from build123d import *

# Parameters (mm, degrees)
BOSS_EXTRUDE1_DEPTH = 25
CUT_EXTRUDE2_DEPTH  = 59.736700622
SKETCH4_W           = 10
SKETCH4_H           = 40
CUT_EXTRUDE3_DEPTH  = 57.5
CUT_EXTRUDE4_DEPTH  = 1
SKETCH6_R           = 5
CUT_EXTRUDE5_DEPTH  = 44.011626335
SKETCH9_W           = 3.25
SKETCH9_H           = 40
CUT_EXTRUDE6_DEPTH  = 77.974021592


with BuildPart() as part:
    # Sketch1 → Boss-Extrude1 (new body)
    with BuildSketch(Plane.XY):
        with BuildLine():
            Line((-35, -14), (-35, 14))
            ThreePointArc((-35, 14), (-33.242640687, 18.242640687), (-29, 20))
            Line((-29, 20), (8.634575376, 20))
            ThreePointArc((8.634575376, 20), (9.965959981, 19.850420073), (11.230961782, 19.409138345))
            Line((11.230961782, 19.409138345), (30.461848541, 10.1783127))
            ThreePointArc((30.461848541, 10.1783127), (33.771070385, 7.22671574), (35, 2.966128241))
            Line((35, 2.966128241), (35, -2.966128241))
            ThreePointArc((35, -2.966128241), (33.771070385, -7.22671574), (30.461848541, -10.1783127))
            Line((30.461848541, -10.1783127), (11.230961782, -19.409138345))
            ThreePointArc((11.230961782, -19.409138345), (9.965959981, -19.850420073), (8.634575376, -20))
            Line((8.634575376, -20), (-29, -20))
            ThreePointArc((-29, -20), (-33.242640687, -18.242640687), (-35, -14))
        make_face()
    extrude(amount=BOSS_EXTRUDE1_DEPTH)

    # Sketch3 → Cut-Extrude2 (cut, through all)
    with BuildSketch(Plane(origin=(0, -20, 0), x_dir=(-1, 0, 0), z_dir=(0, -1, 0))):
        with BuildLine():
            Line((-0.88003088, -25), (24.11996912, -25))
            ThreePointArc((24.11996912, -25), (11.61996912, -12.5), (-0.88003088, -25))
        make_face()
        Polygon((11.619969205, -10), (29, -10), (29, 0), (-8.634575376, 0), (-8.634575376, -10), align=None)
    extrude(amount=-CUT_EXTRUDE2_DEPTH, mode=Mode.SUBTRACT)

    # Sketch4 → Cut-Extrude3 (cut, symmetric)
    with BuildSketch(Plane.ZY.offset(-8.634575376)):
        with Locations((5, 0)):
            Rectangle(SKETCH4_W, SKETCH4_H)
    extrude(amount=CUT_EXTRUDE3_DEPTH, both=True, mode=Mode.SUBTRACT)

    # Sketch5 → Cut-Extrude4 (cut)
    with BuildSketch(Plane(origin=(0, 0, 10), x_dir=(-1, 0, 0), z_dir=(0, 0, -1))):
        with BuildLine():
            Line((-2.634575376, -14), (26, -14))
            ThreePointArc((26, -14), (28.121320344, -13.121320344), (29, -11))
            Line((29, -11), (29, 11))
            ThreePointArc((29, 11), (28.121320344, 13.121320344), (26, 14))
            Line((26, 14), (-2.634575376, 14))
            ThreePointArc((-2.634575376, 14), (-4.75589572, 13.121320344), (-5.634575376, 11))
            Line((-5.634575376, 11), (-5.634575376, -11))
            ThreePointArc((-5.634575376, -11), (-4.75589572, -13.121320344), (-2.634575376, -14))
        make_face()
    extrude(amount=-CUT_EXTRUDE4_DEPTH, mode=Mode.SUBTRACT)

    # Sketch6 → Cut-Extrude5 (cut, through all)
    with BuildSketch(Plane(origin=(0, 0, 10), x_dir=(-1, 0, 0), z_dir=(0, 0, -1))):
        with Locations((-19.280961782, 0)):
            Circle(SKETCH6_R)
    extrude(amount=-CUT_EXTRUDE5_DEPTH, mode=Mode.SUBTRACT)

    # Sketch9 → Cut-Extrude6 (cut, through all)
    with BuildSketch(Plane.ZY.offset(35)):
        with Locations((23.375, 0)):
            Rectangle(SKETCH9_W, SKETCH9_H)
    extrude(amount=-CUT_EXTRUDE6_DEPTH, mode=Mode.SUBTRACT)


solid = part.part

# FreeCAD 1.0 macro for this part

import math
import FreeCAD as App
import Part
import Sketcher
from FreeCAD import Vector
Q = App.Units.Quantity


def add_polygon(sketch, points):
    """Adds a closed chain of lines whose ends are joined by coincident constraints."""
    first, n = sketch.GeometryCount, len(points)
    for a, b in zip(points, points[1:] + points[:1]):
        sketch.addGeometry(Part.LineSegment(App.Vector(*a, 0), App.Vector(*b, 0)), False)
    for i in range(n):
        sketch.addConstraint(Sketcher.Constraint("Coincident", first + i, 2, first + (i + 1) % n, 1))

doc = App.newDocument("Part")
params = doc.addObject("Spreadsheet::Sheet", "Params")
for row, (alias, value) in enumerate([
    ("sketch1_radius", "6 mm"),
    ("sketch1_radius2", "8 mm"),
    ("sketch1_height", "28 mm"),
    ("pad1_length", "25 mm"),
    ("sketch2_radius", "12.5 mm"),
    ("sketch2_height", "10 mm"),
    ("sketch3_width", "40 mm"),
    ("sketch3_height", "10 mm"),
    ("pocket2_length", "115 mm"),
    ("sketch4_radius", "3 mm"),
    ("sketch4_height", "22 mm"),
    ("pocket3_length", "1 mm"),
    ("sketch5_diameter", "10 mm"),
    ("sketch6_width", "40 mm"),
    ("sketch6_height", "3.25 mm"),
], start=1):
    params.set(f"A{row}", alias)
    params.set(f"B{row}", "=" + value)
    params.setAlias(f"B{row}", alias)

body = doc.addObject("PartDesign::Body", "Body")

# Sketch on XY plane
sketch1 = body.newObject("Sketcher::SketchObject", "Sketch")
sketch1.AttachmentSupport = (doc.getObject("XY_Plane"), [""])
sketch1.MapMode = "FlatFace"
sketch1.addGeometry([
    Part.LineSegment(Vector(-35, 14, 0), Vector(-35, -14, 0)),  # 0
    Part.ArcOfCircle(Part.Circle(Vector(-29, -14, 0), Vector(0, 0, 1), 6), math.radians(180), math.radians(270)),  # 1
    Part.LineSegment(Vector(-29, -20, 0), Vector(8.6, -20, 0)),  # 2
    Part.ArcOfCircle(Part.Circle(Vector(8.6, -14, 0), Vector(0, 0, 1), 6), math.radians(-90), math.radians(-64)),  # 3
    Part.LineSegment(Vector(11.2, -19.4, 0), Vector(30.5, -10.2, 0)),  # 4
    Part.ArcOfCircle(Part.Circle(Vector(27, -3, 0), Vector(0, 0, 1), 8), math.radians(-64), math.radians(0)),  # 5
    Part.LineSegment(Vector(35, -3, 0), Vector(35, 3, 0)),  # 6
    Part.ArcOfCircle(Part.Circle(Vector(27, 3, 0), Vector(0, 0, 1), 8), math.radians(0), math.radians(64)),  # 7
    Part.LineSegment(Vector(30.5, 10.2, 0), Vector(11.2, 19.4, 0)),  # 8
    Part.ArcOfCircle(Part.Circle(Vector(8.6, 14, 0), Vector(0, 0, 1), 6), math.radians(64), math.radians(90)),  # 9
    Part.LineSegment(Vector(8.6, 20, 0), Vector(-29, 20, 0)),  # 10
    Part.ArcOfCircle(Part.Circle(Vector(-29, 14, 0), Vector(0, 0, 1), 6), math.radians(90), math.radians(180)),  # 11
], False)
sketch1.addConstraint([
    Sketcher.Constraint("Tangent", 0, 2, 1, 1),
    Sketcher.Constraint("Tangent", 1, 2, 2, 1),
    Sketcher.Constraint("Tangent", 2, 2, 3, 1),
    Sketcher.Constraint("Tangent", 3, 2, 4, 1),
    Sketcher.Constraint("Tangent", 4, 2, 5, 1),
    Sketcher.Constraint("Tangent", 5, 2, 6, 1),
    Sketcher.Constraint("Tangent", 6, 2, 7, 1),
    Sketcher.Constraint("Tangent", 7, 2, 8, 1),
    Sketcher.Constraint("Tangent", 8, 2, 9, 1),
    Sketcher.Constraint("Tangent", 9, 2, 10, 1),
    Sketcher.Constraint("Tangent", 10, 2, 11, 1),
    Sketcher.Constraint("Tangent", 11, 2, 0, 1),
    Sketcher.Constraint("Vertical", 0),
    Sketcher.Constraint("Horizontal", 2),
    Sketcher.Constraint("Vertical", 6),
    Sketcher.Constraint("Horizontal", 10),
    Sketcher.Constraint("Equal", 1, 3),
    Sketcher.Constraint("Equal", 5, 7),
    Sketcher.Constraint("Equal", 3, 9),
    Sketcher.Constraint("Equal", 9, 11),
    Sketcher.Constraint("Symmetric", 3, 3, 9, 3, -1),
    Sketcher.Constraint("Vertical", 4, 2, 7, 2),
    Sketcher.Constraint("Radius", 1, Q("6 mm")),
    Sketcher.Constraint("Radius", 5, Q("8 mm")),
    Sketcher.Constraint("DistanceY", 0, 2, 0, 1, Q("28 mm")),
    Sketcher.Constraint("DistanceX", 1, 3, -1, 1, Q("29 mm")),
    Sketcher.Constraint("DistanceX", -1, 1, 5, 3, Q("27 mm")),
    Sketcher.Constraint("DistanceX", 2, 1, 2, 2, Q("37.634575 mm")),
    Sketcher.Constraint("DistanceY", 6, 1, 6, 2, Q("5.932256 mm")),
])
sketch1.setExpression("Constraints[22]", "Params.sketch1_radius")
sketch1.setExpression("Constraints[23]", "Params.sketch1_radius2")
sketch1.setExpression("Constraints[24]", "Params.sketch1_height")
pad1 = body.newObject("PartDesign::Pad", "Pad")
pad1.Profile = sketch1
pad1.setExpression("Length", "Params.pad1_length")

# Sketch on XZ plane
sketch2 = body.newObject("Sketcher::SketchObject", "Sketch001")
sketch2.AttachmentSupport = (doc.getObject("XZ_Plane"), [""])
sketch2.MapMode = "FlatFace"
sketch2.AttachmentOffset = App.Placement(Vector(0, 0, 20), App.Rotation())
sketch2.addGeometry(Part.LineSegment(Vector(1, 25, 0), Vector(-24, 25, 0)), False)  # 0
sketch2.addGeometry(Part.ArcOfCircle(Part.Circle(Vector(-12, 25, 0), Vector(0, 0, 1), 12), math.radians(180), math.radians(360)), False)  # 1
add_polygon(sketch2, [(-29, 10), (-29, 0), (9, 0), (9, 10)])  # lines 2-5
sketch2.addConstraint([
    Sketcher.Constraint("Coincident", 0, 1, 1, 2),
    Sketcher.Constraint("Coincident", 1, 1, 0, 2),
    Sketcher.Constraint("Horizontal", 0),
    Sketcher.Constraint("Vertical", 2),
    Sketcher.Constraint("Horizontal", 3),
    Sketcher.Constraint("Vertical", 4),
    Sketcher.Constraint("Horizontal", 5),
    Sketcher.Constraint("PointOnObject", 2, 2, -1),
    Sketcher.Constraint("Horizontal", 1, 3, 0, 1),
    Sketcher.Constraint("Radius", 1, Q("12.5 mm")),
    Sketcher.Constraint("DistanceY", 2, 2, 2, 1, Q("10 mm")),
    Sketcher.Constraint("DistanceY", -1, 1, 1, 3, Q("25 mm")),
    Sketcher.Constraint("DistanceX", 2, 2, -1, 1, Q("29 mm")),
    Sketcher.Constraint("DistanceX", 3, 1, 3, 2, Q("37.634575 mm")),
    Sketcher.Constraint("DistanceX", 1, 3, -1, 1, Q("11.619969 mm")),
])
sketch2.setExpression("Constraints[13]", "Params.sketch2_radius")
sketch2.setExpression("Constraints[14]", "Params.sketch2_height")
pocket1 = body.newObject("PartDesign::Pocket", "Pocket")
pocket1.Profile = sketch2
pocket1.Type = "ThroughAll"

# Sketch on YZ plane
sketch3 = body.newObject("Sketcher::SketchObject", "Sketch002")
sketch3.AttachmentSupport = (doc.getObject("YZ_Plane"), [""])
sketch3.MapMode = "FlatFace"
sketch3.AttachmentOffset = App.Placement(Vector(0, 0, 8.634575), App.Rotation())
add_polygon(sketch3, [(20, 0), (-20, 0), (-20, 10), (20, 10)])  # lines 0-3
sketch3.addConstraint([
    Sketcher.Constraint("Horizontal", 0),
    Sketcher.Constraint("Vertical", 1),
    Sketcher.Constraint("Horizontal", 2),
    Sketcher.Constraint("Vertical", 3),
    Sketcher.Constraint("Symmetric", 0, 2, 3, 2, -1, 1),
    Sketcher.Constraint("DistanceX", 0, 2, 0, 1, Q("40 mm")),
    Sketcher.Constraint("DistanceY", 1, 1, 1, 2, Q("10 mm")),
])
sketch3.setExpression("Constraints[9]", "Params.sketch3_width")
sketch3.setExpression("Constraints[10]", "Params.sketch3_height")
pocket2 = body.newObject("PartDesign::Pocket", "Pocket001")
pocket2.Profile = sketch3
pocket2.setExpression("Length", "Params.pocket2_length")
pocket2.Midplane = True

# Sketch on XY plane
sketch4 = body.newObject("Sketcher::SketchObject", "Sketch003")
sketch4.AttachmentSupport = (doc.getObject("XY_Plane"), [""])
sketch4.MapMode = "FlatFace"
sketch4.AttachmentOffset = App.Placement(Vector(0, 0, 10), App.Rotation())
sketch4.addGeometry([
    Part.LineSegment(Vector(2.6, -14, 0), Vector(-26, -14, 0)),  # 0
    Part.ArcOfCircle(Part.Circle(Vector(-26, -11, 0), Vector(0, 0, 1), 3), math.radians(180), math.radians(270)),  # 1
    Part.LineSegment(Vector(-29, -11, 0), Vector(-29, 11, 0)),  # 2
    Part.ArcOfCircle(Part.Circle(Vector(-26, 11, 0), Vector(0, 0, 1), 3), math.radians(90), math.radians(180)),  # 3
    Part.LineSegment(Vector(-26, 14, 0), Vector(2.6, 14, 0)),  # 4
    Part.ArcOfCircle(Part.Circle(Vector(2.6, 11, 0), Vector(0, 0, 1), 3), math.radians(0), math.radians(90)),  # 5
    Part.LineSegment(Vector(5.6, 11, 0), Vector(5.6, -11, 0)),  # 6
    Part.ArcOfCircle(Part.Circle(Vector(2.6, -11, 0), Vector(0, 0, 1), 3), math.radians(-90), math.radians(0)),  # 7
], False)
sketch4.addConstraint([
    Sketcher.Constraint("Tangent", 0, 2, 1, 2),
    Sketcher.Constraint("Tangent", 1, 1, 2, 1),
    Sketcher.Constraint("Tangent", 2, 2, 3, 2),
    Sketcher.Constraint("Tangent", 3, 1, 4, 1),
    Sketcher.Constraint("Tangent", 4, 2, 5, 2),
    Sketcher.Constraint("Tangent", 5, 1, 6, 1),
    Sketcher.Constraint("Tangent", 6, 2, 7, 2),
    Sketcher.Constraint("Tangent", 7, 1, 0, 1),
    Sketcher.Constraint("Horizontal", 0),
    Sketcher.Constraint("Vertical", 2),
    Sketcher.Constraint("Horizontal", 4),
    Sketcher.Constraint("Vertical", 6),
    Sketcher.Constraint("Equal", 1, 3),
    Sketcher.Constraint("Equal", 3, 5),
    Sketcher.Constraint("Equal", 5, 7),
    Sketcher.Constraint("Radius", 1, Q("3 mm")),
    Sketcher.Constraint("DistanceY", 2, 1, 2, 2, Q("22 mm")),
    Sketcher.Constraint("DistanceX", 1, 3, -1, 1, Q("26 mm")),
    Sketcher.Constraint("DistanceY", 1, 3, -1, 1, Q("11 mm")),
    Sketcher.Constraint("DistanceX", 0, 2, 0, 1, Q("28.634575 mm")),
])
sketch4.setExpression("Constraints[15]", "Params.sketch4_radius")
sketch4.setExpression("Constraints[16]", "Params.sketch4_height")
pocket3 = body.newObject("PartDesign::Pocket", "Pocket002")
pocket3.Profile = sketch4
pocket3.setExpression("Length", "Params.pocket3_length")
pocket3.Reversed = True

# Sketch on XY plane
sketch5 = body.newObject("Sketcher::SketchObject", "Sketch004")
sketch5.AttachmentSupport = (doc.getObject("XY_Plane"), [""])
sketch5.MapMode = "FlatFace"
sketch5.AttachmentOffset = App.Placement(Vector(0, 0, 10), App.Rotation())
sketch5.addGeometry(Part.Circle(Vector(19, 0, 0), Vector(0, 0, 1), 5), False)
sketch5.addConstraint([
    Sketcher.Constraint("PointOnObject", 0, 3, -1),
    Sketcher.Constraint("Diameter", 0, Q("10 mm")),
    Sketcher.Constraint("DistanceX", -1, 1, 0, 3, Q("19.280962 mm")),
])
sketch5.setExpression("Constraints[1]", "Params.sketch5_diameter")
pocket4 = body.newObject("PartDesign::Pocket", "Pocket003")
pocket4.Profile = sketch5
pocket4.Type = "ThroughAll"
pocket4.Reversed = True

# Sketch on YZ plane
sketch6 = body.newObject("Sketcher::SketchObject", "Sketch005")
sketch6.AttachmentSupport = (doc.getObject("YZ_Plane"), [""])
sketch6.MapMode = "FlatFace"
sketch6.AttachmentOffset = App.Placement(Vector(0, 0, -35), App.Rotation())
add_polygon(sketch6, [(20, 21.8), (-20, 21.8), (-20, 25), (20, 25)])  # lines 0-3
sketch6.addConstraint([
    Sketcher.Constraint("Horizontal", 0),
    Sketcher.Constraint("Vertical", 1),
    Sketcher.Constraint("Horizontal", 2),
    Sketcher.Constraint("Vertical", 3),
    Sketcher.Constraint("DistanceX", 0, 2, 0, 1, Q("40 mm")),
    Sketcher.Constraint("DistanceX", 0, 2, -1, 1, Q("20 mm")),
    Sketcher.Constraint("DistanceY", -1, 1, 1, 2, Q("25 mm")),
    Sketcher.Constraint("DistanceY", 1, 1, 1, 2, Q("3.25 mm")),
])
sketch6.setExpression("Constraints[8]", "Params.sketch6_width")
sketch6.setExpression("Constraints[11]", "Params.sketch6_height")
pocket5 = body.newObject("PartDesign::Pocket", "Pocket004")
pocket5.Profile = sketch6
pocket5.Type = "ThroughAll"
pocket5.Reversed = True

doc.recompute()
